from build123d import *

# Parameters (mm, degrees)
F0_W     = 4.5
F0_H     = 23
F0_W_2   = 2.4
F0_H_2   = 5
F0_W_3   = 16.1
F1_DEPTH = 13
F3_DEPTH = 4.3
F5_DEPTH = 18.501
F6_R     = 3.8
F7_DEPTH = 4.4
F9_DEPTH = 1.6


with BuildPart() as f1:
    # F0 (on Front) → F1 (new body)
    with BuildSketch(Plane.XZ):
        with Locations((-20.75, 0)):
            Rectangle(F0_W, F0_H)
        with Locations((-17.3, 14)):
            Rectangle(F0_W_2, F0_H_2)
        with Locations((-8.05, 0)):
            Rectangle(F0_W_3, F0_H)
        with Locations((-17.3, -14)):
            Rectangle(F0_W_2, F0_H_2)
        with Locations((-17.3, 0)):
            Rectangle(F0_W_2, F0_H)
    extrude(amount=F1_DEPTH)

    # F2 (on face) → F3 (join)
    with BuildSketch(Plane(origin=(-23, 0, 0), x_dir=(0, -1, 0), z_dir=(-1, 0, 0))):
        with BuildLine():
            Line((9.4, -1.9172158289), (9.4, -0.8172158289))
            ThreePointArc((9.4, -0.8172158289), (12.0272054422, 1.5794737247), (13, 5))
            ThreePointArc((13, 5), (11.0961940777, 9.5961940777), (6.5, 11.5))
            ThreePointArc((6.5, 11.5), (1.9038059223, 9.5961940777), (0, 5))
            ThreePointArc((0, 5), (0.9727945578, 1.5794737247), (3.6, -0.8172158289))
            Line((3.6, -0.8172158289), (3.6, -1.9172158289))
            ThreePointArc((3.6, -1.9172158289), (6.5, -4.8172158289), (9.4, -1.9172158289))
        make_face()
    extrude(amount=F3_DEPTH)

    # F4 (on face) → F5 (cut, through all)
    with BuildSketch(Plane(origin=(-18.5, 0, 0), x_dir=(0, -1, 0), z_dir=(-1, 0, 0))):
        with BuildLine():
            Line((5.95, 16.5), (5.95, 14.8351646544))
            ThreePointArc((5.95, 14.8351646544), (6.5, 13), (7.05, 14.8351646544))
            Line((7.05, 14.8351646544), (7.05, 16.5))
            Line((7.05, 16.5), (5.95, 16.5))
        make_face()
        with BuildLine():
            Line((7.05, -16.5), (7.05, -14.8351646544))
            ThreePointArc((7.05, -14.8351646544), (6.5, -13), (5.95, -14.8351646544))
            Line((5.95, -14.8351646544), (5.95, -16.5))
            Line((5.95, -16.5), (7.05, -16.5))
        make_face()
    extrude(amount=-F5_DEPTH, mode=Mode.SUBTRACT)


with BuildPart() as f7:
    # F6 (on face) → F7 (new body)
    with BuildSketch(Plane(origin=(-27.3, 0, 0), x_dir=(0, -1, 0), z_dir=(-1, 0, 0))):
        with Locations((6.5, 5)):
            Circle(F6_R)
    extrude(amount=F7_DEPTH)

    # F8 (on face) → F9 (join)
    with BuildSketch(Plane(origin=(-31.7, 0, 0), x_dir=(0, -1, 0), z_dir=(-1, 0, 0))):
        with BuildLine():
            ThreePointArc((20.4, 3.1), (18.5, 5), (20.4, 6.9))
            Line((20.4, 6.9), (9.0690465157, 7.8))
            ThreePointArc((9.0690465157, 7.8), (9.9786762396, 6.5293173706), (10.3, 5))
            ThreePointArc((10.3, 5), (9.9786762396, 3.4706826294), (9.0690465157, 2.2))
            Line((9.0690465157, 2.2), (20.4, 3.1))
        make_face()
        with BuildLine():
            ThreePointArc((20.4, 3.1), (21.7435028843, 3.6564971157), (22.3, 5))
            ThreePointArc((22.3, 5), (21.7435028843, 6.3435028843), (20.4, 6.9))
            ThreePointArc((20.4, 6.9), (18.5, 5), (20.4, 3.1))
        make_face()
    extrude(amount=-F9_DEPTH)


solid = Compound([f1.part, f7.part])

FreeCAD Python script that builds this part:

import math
import FreeCAD as App
import Part
import Sketcher
Q = App.Units.Quantity


def add_polygon(sketch, points):
    """Adds a closed chain of lines whose ends are joined by coincident constraints."""
    first, n = sketch.GeometryCount, len(points)
    for a, b in zip(points, points[1:] + points[:1]):
        sketch.addGeometry(Part.LineSegment(App.Vector(*a, 0), App.Vector(*b, 0)), False)
    for i in range(n):
        sketch.addConstraint(Sketcher.Constraint("Coincident", first + i, 2, first + (i + 1) % n, 1))

doc = App.newDocument("Part")
body = doc.addObject("PartDesign::Body", "Body")

# Sketch on XZ plane
sketch1 = body.newObject("Sketcher::SketchObject", "Sketch")
sketch1.AttachmentSupport = (doc.getObject("XZ_Plane"), [""])
sketch1.MapMode = "FlatFace"
add_polygon(sketch1, [(-23, 11.5), (-23, -11.5), (-18.5, -11.5), (-18.5, -16.5), (-16.1, -16.5), (-16.1, -11.5), (0, -11.5), (0, 11.5), (-16.1, 11.5), (-16.1, 16.5), (-18.5, 16.5), (-18.5, 11.5)])  # lines 0-11
sketch1.addConstraint(Sketcher.Constraint("Vertical", 0))
sketch1.addConstraint(Sketcher.Constraint("Horizontal", 1))
sketch1.addConstraint(Sketcher.Constraint("Vertical", 2))
sketch1.addConstraint(Sketcher.Constraint("Horizontal", 3))
sketch1.addConstraint(Sketcher.Constraint("Vertical", 4))
sketch1.addConstraint(Sketcher.Constraint("Horizontal", 5))
sketch1.addConstraint(Sketcher.Constraint("Vertical", 6))
sketch1.addConstraint(Sketcher.Constraint("Horizontal", 7))
sketch1.addConstraint(Sketcher.Constraint("Vertical", 8))
sketch1.addConstraint(Sketcher.Constraint("Horizontal", 9))
sketch1.addConstraint(Sketcher.Constraint("Vertical", 10))
sketch1.addConstraint(Sketcher.Constraint("Horizontal", 11))
sketch1.addConstraint(Sketcher.Constraint("Symmetric", 5, 2, 6, 2, -1, 1))
sketch1.addConstraint(Sketcher.Constraint("Symmetric", 3, 2, 8, 2, -1))
sketch1.addConstraint(Sketcher.Constraint("Symmetric", 1, 2, 10, 2, -1))
sketch1.addConstraint(Sketcher.Constraint("Horizontal", 1, 2, 4, 2))
sketch1.addConstraint(Sketcher.Constraint("DistanceY", 0, 2, 0, 1, Q("23 mm")))
sketch1.addConstraint(Sketcher.Constraint("DistanceY", 2, 2, 2, 1, Q("5 mm")))
sketch1.addConstraint(Sketcher.Constraint("DistanceX", 1, 1, 1, 2, Q("4.5 mm")))
sketch1.addConstraint(Sketcher.Constraint("DistanceX", 3, 1, 3, 2, Q("2.4 mm")))
sketch1.addConstraint(Sketcher.Constraint("DistanceX", 5, 1, 5, 2, Q("16.1 mm")))
pad1 = body.newObject("PartDesign::Pad", "Pad")
pad1.Profile = sketch1
pad1.Length = 13

# Sketch on YZ plane
sketch2 = body.newObject("Sketcher::SketchObject", "Sketch001")
sketch2.AttachmentSupport = (doc.getObject("YZ_Plane"), [""])
sketch2.MapMode = "FlatFace"
sketch2.AttachmentOffset = App.Placement(App.Vector(0, 0, -23), App.Rotation())
sketch2.addGeometry(Part.LineSegment(App.Vector(-9.4, -1.9, 0), App.Vector(-9.4, -0.8, 0)), False)
sketch2.addGeometry(Part.ArcOfCircle(Part.Circle(App.Vector(-6.5, 5, 0), App.Vector(0, 0, 1), 6.5), math.radians(180), math.radians(244)), False)
sketch2.addGeometry(Part.ArcOfCircle(Part.Circle(App.Vector(-6.5, 5, 0), App.Vector(0, 0, 1), 6.5), math.radians(90), math.radians(180)), False)
sketch2.addGeometry(Part.ArcOfCircle(Part.Circle(App.Vector(-6.5, 5, 0), App.Vector(0, 0, 1), 6.5), math.radians(0), math.radians(90)), False)
sketch2.addGeometry(Part.ArcOfCircle(Part.Circle(App.Vector(-6.5, 5, 0), App.Vector(0, 0, 1), 6.5), math.radians(-64), math.radians(0)), False)
sketch2.addGeometry(Part.LineSegment(App.Vector(-3.6, -0.8, 0), App.Vector(-3.6, -1.9, 0)), False)
sketch2.addGeometry(Part.ArcOfCircle(Part.Circle(App.Vector(-6.5, -1.9, 0), App.Vector(0, 0, 1), 2.9), math.radians(180), math.radians(360)), False)
sketch2.addConstraint(Sketcher.Constraint("Coincident", 0, 2, 1, 2))
sketch2.addConstraint(Sketcher.Constraint("Tangent", 1, 1, 2, 2))
sketch2.addConstraint(Sketcher.Constraint("Tangent", 2, 1, 3, 2))
sketch2.addConstraint(Sketcher.Constraint("Tangent", 3, 1, 4, 2))
sketch2.addConstraint(Sketcher.Constraint("Coincident", 4, 1, 5, 1))
sketch2.addConstraint(Sketcher.Constraint("Tangent", 5, 2, 6, 2))
sketch2.addConstraint(Sketcher.Constraint("Tangent", 6, 1, 0, 1))
sketch2.addConstraint(Sketcher.Constraint("Vertical", 0))
sketch2.addConstraint(Sketcher.Constraint("Vertical", 5))
sketch2.addConstraint(Sketcher.Constraint("Coincident", 3, 3, 1, 3))
sketch2.addConstraint(Sketcher.Constraint("Equal", 3, 4))
sketch2.addConstraint(Sketcher.Constraint("PointOnObject", 3, 1, -2))
sketch2.addConstraint(Sketcher.Constraint("Horizontal", 4, 3, 1, 1))
sketch2.addConstraint(Sketcher.Constraint("Horizontal", 1, 1, 3, 1))
sketch2.addConstraint(Sketcher.Constraint("Horizontal", 0, 2, 4, 1))
sketch2.addConstraint(Sketcher.Constraint("Vertical", 6, 3, 2, 1))
sketch2.addConstraint(Sketcher.Constraint("Radius", 1, Q("6.5 mm")))
sketch2.addConstraint(Sketcher.Constraint("Radius", 6, Q("2.9 mm")))
sketch2.addConstraint(Sketcher.Constraint("DistanceY", 0, 1, 0, 2, Q("1.1 mm")))
sketch2.addConstraint(Sketcher.Constraint("DistanceY", -1, 1, 1, 3, Q("5 mm")))
pad2 = body.newObject("PartDesign::Pad", "Pad001")
pad2.Profile = sketch2
pad2.Length = 4.3
pad2.Reversed = True

# Sketch on YZ plane
sketch3 = body.newObject("Sketcher::SketchObject", "Sketch002")
sketch3.AttachmentSupport = (doc.getObject("YZ_Plane"), [""])
sketch3.MapMode = "FlatFace"
sketch3.AttachmentOffset = App.Placement(App.Vector(0, 0, -18.5), App.Rotation())
sketch3.addGeometry(Part.LineSegment(App.Vector(-6, 16.5, 0), App.Vector(-6, 14.8, 0)), False)
sketch3.addGeometry(Part.ArcOfCircle(Part.Circle(App.Vector(-6.5, 14, 0), App.Vector(0, 0, 1), 1), math.radians(123), math.radians(417)), False)
sketch3.addGeometry(Part.LineSegment(App.Vector(-7, 14.8, 0), App.Vector(-7, 16.5, 0)), False)
sketch3.addGeometry(Part.LineSegment(App.Vector(-7, 16.5, 0), App.Vector(-6, 16.5, 0)), False)
sketch3.addGeometry(Part.LineSegment(App.Vector(-7, -16.5, 0), App.Vector(-7, -14.8, 0)), False)
sketch3.addGeometry(Part.ArcOfCircle(Part.Circle(App.Vector(-6.5, -14, 0), App.Vector(0, 0, 1), 1), math.radians(-57), math.radians(237)), False)
sketch3.addGeometry(Part.LineSegment(App.Vector(-6, -14.8, 0), App.Vector(-6, -16.5, 0)), False)
sketch3.addGeometry(Part.LineSegment(App.Vector(-6, -16.5, 0), App.Vector(-7, -16.5, 0)), False)
sketch3.addConstraint(Sketcher.Constraint("Coincident", 0, 2, 1, 2))
sketch3.addConstraint(Sketcher.Constraint("Coincident", 1, 1, 2, 1))
sketch3.addConstraint(Sketcher.Constraint("Coincident", 2, 2, 3, 1))
sketch3.addConstraint(Sketcher.Constraint("Coincident", 3, 2, 0, 1))
sketch3.addConstraint(Sketcher.Constraint("Coincident", 4, 2, 5, 2))
sketch3.addConstraint(Sketcher.Constraint("Coincident", 5, 1, 6, 1))
sketch3.addConstraint(Sketcher.Constraint("Coincident", 6, 2, 7, 1))
sketch3.addConstraint(Sketcher.Constraint("Coincident", 7, 2, 4, 1))
sketch3.addConstraint(Sketcher.Constraint("Vertical", 0))
sketch3.addConstraint(Sketcher.Constraint("Vertical", 2))
sketch3.addConstraint(Sketcher.Constraint("Horizontal", 3))
sketch3.addConstraint(Sketcher.Constraint("Vertical", 4))
sketch3.addConstraint(Sketcher.Constraint("Vertical", 6))
sketch3.addConstraint(Sketcher.Constraint("Horizontal", 7))
sketch3.addConstraint(Sketcher.Constraint("Equal", 1, 5))
sketch3.addConstraint(Sketcher.Constraint("Symmetric", 1, 3, 5, 3, -1))
sketch3.addConstraint(Sketcher.Constraint("Symmetric", 3, 2, 6, 2, -1))
sketch3.addConstraint(Sketcher.Constraint("Horizontal", 0, 2, 1, 1))
sketch3.addConstraint(Sketcher.Constraint("Horizontal", 4, 2, 5, 1))
sketch3.addConstraint(Sketcher.Constraint("Radius", 1, Q("1 mm")))
sketch3.addConstraint(Sketcher.Constraint("DistanceX", 3, 1, 3, 2, Q("1.1 mm")))
sketch3.addConstraint(Sketcher.Constraint("DistanceY", -1, 1, 1, 3, Q("14 mm")))
sketch3.addConstraint(Sketcher.Constraint("DistanceX", 1, 3, -1, 1, Q("6.5 mm")))
sketch3.addConstraint(Sketcher.Constraint("DistanceY", -1, 1, 2, 2, Q("16.5 mm")))
pocket1 = body.newObject("PartDesign::Pocket", "Pocket")
pocket1.Profile = sketch3
pocket1.Type = "ThroughAll"
pocket1.Reversed = True
body2 = doc.addObject("PartDesign::Body", "Body001")

# Sketch on YZ plane
sketch4 = body2.newObject("Sketcher::SketchObject", "Sketch003")
sketch4.AttachmentSupport = (doc.getObject("YZ_Plane001"), [""])
sketch4.MapMode = "FlatFace"
sketch4.AttachmentOffset = App.Placement(App.Vector(0, 0, -27.3), App.Rotation())
sketch4.addGeometry(Part.Circle(App.Vector(-6.5, 5, 0), App.Vector(0, 0, 1), 3.8), False)
sketch4.addConstraint(Sketcher.Constraint("Diameter", 0, Q("7.6 mm")))
sketch4.addConstraint(Sketcher.Constraint("DistanceY", -1, 1, 0, 3, Q("5 mm")))
sketch4.addConstraint(Sketcher.Constraint("DistanceX", 0, 3, -1, 1, Q("6.5 mm")))
pad3 = body2.newObject("PartDesign::Pad", "Pad002")
pad3.Profile = sketch4
pad3.Length = 4.4
pad3.Reversed = True

# Sketch on YZ plane
sketch5 = body2.newObject("Sketcher::SketchObject", "Sketch004")
sketch5.AttachmentSupport = (doc.getObject("YZ_Plane001"), [""])
sketch5.MapMode = "FlatFace"
sketch5.AttachmentOffset = App.Placement(App.Vector(0, 0, -31.7), App.Rotation())
sketch5.addGeometry(Part.LineSegment(App.Vector(-20.4, 6.9, 0), App.Vector(-9.1, 7.8, 0)), False)
sketch5.addGeometry(Part.ArcOfCircle(Part.Circle(App.Vector(-6.5, 5, 0), App.Vector(0, 0, 1), 3.8), math.radians(133), math.radians(180)), False)
sketch5.addGeometry(Part.ArcOfCircle(Part.Circle(App.Vector(-6.5, 5, 0), App.Vector(0, 0, 1), 3.8), math.radians(180), math.radians(227)), False)
sketch5.addGeometry(Part.LineSegment(App.Vector(-9.1, 2.2, 0), App.Vector(-20.4, 3.1, 0)), False)
sketch5.addGeometry(Part.ArcOfCircle(Part.Circle(App.Vector(-20.4, 5, 0), App.Vector(0, 0, 1), 1.9), math.radians(180), math.radians(270)), False)
sketch5.addGeometry(Part.ArcOfCircle(Part.Circle(App.Vector(-20.4, 5, 0), App.Vector(0, 0, 1), 1.9), math.radians(90), math.radians(180)), False)
sketch5.addConstraint(Sketcher.Constraint("Coincident", 0, 2, 1, 1))
sketch5.addConstraint(Sketcher.Constraint("Tangent", 1, 2, 2, 1))
sketch5.addConstraint(Sketcher.Constraint("Coincident", 2, 2, 3, 1))
sketch5.addConstraint(Sketcher.Constraint("Coincident", 3, 2, 4, 2))
sketch5.addConstraint(Sketcher.Constraint("Tangent", 4, 1, 5, 2))
sketch5.addConstraint(Sketcher.Constraint("Coincident", 5, 1, 0, 1))
sketch5.addConstraint(Sketcher.Constraint("Equal", 1, 2))
sketch5.addConstraint(Sketcher.Constraint("Equal", 4, 5))
sketch5.addConstraint(Sketcher.Constraint("Horizontal", 2, 3, 4, 3))
sketch5.addConstraint(Sketcher.Constraint("Horizontal", 5, 3, 1, 2))
sketch5.addConstraint(Sketcher.Constraint("Horizontal", 1, 2, 4, 1))
sketch5.addConstraint(Sketcher.Constraint("Vertical", 0, 2, 2, 2))
sketch5.addConstraint(Sketcher.Constraint("Vertical", 5, 3, 3, 2))
sketch5.addConstraint(Sketcher.Constraint("Vertical", 3, 2, 5, 1))
sketch5.addConstraint(Sketcher.Constraint("Radius", 1, Q("3.8 mm")))
sketch5.addConstraint(Sketcher.Constraint("Radius", 4, Q("1.9 mm")))
sketch5.addConstraint(Sketcher.Constraint("DistanceY", -1, 1, 1, 3, Q("5 mm")))
sketch5.addConstraint(Sketcher.Constraint("DistanceX", 4, 1, 1, 2, Q("12 mm")))
sketch5.addConstraint(Sketcher.Constraint("DistanceX", 1, 3, -1, 1, Q("6.5 mm")))
sketch5.addConstraint(Sketcher.Constraint("DistanceY", -1, 1, 0, 2, Q("7.8 mm")))
pad4 = body2.newObject("PartDesign::Pad", "Pad003")
pad4.Profile = sketch5
pad4.Length = 1.6

doc.recompute()
